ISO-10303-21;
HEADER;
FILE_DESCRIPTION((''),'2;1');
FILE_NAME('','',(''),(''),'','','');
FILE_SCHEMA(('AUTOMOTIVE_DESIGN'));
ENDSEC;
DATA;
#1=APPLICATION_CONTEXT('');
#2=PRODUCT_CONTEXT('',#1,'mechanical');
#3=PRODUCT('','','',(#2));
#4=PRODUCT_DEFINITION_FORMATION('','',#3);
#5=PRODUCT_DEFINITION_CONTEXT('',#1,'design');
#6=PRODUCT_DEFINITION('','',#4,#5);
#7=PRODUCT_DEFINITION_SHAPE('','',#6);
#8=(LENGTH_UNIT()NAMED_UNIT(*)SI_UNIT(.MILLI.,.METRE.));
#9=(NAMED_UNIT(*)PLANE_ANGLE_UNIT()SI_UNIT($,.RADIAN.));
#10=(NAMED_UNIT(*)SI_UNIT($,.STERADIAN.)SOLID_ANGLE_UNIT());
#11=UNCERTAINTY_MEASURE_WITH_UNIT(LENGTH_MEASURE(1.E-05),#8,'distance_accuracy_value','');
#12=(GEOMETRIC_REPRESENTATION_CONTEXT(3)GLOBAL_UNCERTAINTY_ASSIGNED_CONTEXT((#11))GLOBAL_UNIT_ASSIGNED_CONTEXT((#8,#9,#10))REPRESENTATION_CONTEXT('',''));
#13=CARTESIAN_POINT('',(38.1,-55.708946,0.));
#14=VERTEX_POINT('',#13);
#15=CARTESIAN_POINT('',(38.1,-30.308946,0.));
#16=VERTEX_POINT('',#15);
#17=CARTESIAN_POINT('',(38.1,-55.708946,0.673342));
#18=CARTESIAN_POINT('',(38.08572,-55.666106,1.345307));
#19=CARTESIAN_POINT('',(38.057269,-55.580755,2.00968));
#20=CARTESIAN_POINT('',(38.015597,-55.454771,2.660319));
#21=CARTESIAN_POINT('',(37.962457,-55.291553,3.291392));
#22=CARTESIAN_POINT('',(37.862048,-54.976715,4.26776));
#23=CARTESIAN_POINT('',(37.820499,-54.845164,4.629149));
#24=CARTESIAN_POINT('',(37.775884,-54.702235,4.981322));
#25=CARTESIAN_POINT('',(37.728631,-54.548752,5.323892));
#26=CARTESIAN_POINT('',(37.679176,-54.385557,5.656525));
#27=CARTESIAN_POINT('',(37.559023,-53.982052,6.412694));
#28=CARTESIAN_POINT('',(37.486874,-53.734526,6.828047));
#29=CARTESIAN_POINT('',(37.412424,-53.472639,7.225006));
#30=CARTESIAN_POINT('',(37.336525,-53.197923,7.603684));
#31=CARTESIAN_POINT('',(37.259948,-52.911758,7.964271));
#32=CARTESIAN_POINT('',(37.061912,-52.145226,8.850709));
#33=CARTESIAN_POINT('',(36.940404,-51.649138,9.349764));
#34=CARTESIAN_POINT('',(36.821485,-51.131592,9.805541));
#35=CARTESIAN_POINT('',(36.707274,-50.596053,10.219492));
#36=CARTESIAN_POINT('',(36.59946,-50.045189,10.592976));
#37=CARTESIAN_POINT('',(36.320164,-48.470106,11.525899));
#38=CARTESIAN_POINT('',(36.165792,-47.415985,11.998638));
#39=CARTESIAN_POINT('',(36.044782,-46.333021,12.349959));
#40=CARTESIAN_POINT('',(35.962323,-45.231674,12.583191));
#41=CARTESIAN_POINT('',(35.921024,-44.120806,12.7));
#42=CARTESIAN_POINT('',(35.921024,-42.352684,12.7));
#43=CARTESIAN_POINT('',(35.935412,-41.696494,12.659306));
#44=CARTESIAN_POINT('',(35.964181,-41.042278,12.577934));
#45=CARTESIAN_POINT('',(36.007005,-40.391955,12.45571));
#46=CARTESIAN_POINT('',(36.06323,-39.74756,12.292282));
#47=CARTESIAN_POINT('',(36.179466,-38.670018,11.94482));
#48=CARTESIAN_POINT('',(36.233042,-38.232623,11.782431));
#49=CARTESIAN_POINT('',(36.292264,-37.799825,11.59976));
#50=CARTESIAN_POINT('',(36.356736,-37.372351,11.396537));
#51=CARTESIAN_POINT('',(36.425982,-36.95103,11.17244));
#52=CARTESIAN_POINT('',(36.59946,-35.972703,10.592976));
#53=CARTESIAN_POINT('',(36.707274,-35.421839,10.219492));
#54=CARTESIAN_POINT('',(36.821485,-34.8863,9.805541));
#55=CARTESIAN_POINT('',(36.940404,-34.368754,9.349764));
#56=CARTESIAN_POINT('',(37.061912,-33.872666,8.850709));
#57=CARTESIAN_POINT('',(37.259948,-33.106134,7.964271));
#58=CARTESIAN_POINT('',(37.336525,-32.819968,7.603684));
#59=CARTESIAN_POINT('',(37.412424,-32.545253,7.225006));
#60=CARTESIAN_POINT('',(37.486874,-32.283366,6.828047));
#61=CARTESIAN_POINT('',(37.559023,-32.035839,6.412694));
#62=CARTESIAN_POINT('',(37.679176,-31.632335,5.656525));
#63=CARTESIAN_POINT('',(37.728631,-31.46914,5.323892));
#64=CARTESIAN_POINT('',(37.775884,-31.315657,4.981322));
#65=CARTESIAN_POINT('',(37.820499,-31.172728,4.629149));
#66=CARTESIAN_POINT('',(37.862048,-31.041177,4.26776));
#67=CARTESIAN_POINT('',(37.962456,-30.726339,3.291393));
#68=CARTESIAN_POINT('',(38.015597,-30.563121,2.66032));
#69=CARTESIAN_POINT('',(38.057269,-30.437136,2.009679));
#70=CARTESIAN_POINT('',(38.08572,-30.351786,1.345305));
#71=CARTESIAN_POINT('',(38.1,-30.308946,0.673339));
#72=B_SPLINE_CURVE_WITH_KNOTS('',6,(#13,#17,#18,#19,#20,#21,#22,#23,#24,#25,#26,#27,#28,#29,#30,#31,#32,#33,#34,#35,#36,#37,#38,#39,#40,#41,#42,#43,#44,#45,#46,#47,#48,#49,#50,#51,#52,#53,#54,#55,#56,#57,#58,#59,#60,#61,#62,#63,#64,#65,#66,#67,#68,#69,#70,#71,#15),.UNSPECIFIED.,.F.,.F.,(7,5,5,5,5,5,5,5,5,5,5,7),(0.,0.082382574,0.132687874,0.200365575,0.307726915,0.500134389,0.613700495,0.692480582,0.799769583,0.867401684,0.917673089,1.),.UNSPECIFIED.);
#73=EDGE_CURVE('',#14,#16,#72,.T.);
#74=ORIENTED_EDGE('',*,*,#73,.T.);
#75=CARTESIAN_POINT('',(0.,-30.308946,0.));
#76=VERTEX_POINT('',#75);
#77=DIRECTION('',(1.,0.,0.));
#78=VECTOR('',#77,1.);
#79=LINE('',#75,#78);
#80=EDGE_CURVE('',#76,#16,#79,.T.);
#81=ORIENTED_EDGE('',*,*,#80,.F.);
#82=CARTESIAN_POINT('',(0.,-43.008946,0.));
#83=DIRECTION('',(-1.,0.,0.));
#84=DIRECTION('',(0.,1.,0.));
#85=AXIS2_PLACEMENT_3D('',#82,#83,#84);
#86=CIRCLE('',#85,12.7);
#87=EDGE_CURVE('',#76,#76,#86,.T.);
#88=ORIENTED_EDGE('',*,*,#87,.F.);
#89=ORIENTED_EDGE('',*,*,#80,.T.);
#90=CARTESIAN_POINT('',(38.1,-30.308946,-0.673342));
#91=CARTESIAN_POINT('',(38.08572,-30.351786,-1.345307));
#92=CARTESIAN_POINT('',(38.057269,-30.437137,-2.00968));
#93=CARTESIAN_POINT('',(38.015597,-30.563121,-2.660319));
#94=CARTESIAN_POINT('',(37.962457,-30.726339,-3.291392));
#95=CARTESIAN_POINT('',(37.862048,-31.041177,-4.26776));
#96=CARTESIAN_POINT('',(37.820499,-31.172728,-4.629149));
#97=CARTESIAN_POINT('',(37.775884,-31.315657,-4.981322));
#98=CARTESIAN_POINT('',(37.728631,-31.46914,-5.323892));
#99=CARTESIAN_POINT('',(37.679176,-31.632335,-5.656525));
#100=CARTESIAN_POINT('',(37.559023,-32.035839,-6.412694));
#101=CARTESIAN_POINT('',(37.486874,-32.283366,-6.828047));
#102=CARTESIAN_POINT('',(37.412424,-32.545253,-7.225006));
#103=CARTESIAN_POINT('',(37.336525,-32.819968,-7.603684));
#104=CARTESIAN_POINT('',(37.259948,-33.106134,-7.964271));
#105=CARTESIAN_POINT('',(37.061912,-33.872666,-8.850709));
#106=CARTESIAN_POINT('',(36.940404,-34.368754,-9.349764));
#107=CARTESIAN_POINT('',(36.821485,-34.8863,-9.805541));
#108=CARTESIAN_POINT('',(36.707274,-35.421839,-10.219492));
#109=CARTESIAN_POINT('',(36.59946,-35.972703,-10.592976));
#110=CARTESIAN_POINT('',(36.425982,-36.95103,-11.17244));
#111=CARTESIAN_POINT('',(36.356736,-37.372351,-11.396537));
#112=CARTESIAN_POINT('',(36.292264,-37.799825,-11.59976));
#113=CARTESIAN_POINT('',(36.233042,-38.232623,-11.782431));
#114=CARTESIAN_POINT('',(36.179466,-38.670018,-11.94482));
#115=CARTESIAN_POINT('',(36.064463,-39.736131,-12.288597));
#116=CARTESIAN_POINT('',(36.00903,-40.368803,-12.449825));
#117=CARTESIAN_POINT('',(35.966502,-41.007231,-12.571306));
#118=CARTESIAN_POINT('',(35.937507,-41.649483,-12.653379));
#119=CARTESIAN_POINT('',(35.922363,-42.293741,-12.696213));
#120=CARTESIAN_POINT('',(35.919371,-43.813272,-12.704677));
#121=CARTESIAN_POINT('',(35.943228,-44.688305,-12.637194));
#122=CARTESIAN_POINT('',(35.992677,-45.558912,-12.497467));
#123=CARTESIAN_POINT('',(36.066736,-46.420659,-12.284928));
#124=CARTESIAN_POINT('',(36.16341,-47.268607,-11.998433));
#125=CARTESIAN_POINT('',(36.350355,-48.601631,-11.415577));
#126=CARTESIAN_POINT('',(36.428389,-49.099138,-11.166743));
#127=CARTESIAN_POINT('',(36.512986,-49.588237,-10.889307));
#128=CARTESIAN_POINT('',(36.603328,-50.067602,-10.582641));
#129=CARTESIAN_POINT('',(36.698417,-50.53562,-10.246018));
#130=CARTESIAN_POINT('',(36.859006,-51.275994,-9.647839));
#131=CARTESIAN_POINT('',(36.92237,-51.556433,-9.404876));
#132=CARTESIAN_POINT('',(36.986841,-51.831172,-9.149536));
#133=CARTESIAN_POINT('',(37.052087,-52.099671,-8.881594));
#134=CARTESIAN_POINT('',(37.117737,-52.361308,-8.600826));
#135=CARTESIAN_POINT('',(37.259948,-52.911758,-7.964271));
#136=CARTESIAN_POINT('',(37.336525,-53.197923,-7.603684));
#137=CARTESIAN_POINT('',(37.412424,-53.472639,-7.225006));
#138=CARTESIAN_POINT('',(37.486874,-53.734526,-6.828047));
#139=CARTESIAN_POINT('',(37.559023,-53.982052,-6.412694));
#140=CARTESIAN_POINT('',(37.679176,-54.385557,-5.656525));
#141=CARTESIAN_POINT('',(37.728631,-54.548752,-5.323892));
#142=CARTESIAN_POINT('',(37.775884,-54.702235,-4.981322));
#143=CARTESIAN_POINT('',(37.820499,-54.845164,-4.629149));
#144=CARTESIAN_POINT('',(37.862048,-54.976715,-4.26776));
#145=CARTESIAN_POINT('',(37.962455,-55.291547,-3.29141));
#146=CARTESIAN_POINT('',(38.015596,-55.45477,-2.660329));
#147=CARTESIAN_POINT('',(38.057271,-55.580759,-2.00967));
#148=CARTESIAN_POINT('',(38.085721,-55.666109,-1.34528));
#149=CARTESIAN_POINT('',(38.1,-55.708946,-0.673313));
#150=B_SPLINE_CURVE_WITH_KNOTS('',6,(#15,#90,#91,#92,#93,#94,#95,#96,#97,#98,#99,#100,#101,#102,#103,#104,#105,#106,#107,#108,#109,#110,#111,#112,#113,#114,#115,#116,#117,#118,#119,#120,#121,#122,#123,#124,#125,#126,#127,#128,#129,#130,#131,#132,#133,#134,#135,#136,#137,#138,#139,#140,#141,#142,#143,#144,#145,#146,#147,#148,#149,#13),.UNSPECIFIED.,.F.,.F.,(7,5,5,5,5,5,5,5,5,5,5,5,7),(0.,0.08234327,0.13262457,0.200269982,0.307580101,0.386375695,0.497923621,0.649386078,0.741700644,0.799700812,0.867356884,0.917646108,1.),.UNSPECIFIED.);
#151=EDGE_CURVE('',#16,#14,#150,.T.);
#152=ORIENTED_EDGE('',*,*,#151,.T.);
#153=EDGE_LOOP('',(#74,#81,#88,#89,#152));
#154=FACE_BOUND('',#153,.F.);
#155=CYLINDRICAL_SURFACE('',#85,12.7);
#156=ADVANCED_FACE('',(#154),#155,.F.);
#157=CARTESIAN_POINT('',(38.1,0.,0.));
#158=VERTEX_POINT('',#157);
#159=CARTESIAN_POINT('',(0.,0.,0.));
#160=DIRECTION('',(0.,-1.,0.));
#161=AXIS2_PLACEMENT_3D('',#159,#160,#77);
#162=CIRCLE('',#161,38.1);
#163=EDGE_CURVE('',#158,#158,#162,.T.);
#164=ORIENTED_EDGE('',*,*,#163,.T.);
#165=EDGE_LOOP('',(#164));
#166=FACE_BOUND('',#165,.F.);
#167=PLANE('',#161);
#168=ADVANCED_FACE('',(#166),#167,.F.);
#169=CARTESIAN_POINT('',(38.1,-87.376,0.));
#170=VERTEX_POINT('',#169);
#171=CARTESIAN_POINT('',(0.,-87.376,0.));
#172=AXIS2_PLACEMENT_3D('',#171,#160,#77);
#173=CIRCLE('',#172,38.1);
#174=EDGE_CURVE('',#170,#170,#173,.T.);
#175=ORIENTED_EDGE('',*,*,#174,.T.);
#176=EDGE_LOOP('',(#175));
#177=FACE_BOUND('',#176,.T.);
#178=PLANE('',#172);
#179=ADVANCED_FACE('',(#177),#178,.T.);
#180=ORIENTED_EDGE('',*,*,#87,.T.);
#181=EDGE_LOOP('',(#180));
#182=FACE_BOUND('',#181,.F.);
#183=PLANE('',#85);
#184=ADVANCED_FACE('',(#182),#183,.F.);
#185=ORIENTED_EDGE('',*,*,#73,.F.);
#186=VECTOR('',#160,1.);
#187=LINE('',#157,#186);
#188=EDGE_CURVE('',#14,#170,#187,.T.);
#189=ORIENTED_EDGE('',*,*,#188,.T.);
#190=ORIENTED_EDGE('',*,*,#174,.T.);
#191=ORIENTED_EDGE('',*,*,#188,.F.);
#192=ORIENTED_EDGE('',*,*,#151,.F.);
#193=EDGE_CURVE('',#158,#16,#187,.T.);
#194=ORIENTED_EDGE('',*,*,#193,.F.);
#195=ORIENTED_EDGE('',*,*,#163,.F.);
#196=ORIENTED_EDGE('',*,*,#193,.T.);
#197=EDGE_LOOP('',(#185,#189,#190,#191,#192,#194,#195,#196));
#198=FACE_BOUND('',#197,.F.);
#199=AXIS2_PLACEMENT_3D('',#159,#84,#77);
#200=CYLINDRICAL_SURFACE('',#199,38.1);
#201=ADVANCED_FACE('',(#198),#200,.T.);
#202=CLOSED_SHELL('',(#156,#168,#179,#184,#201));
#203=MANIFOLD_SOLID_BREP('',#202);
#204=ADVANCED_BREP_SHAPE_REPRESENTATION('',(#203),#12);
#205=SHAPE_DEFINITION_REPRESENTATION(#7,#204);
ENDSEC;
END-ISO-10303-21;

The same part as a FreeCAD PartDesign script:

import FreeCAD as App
import Part
import Sketcher
Q = App.Units.Quantity

doc = App.newDocument("Part")
params = doc.addObject("Spreadsheet::Sheet", "Params")
for row, (alias, value) in enumerate([
    ("sketch1_diameter", "3 in"),
    ("pad1_length", "3.44 in"),
    ("sketch2_diameter", "1 in"),
], start=1):
    params.set(f"A{row}", alias)
    params.set(f"B{row}", "=" + value)
    params.setAlias(f"B{row}", alias)

body = doc.addObject("PartDesign::Body", "Body")

sketch1 = body.newObject("Sketcher::SketchObject", "Sketch")
sketch1.AttachmentSupport = (doc.getObject("XZ_Plane"), [""])
sketch1.MapMode = "FlatFace"
sketch1.addGeometry(Part.Circle(App.Vector(0, 0, 0), App.Vector(0, 0, 1), 38), False)
sketch1.addConstraint(Sketcher.Constraint("Coincident", 0, 3, -1, 1))
sketch1.addConstraint(Sketcher.Constraint("Diameter", 0, Q("3 in")))
sketch1.setExpression("Constraints[1]", "Params.sketch1_diameter")
pad1 = body.newObject("PartDesign::Pad", "Pad")
pad1.Profile = sketch1
pad1.setExpression("Length", "Params.pad1_length")

sketch2 = body.newObject("Sketcher::SketchObject", "Sketch001")
sketch2.AttachmentSupport = (doc.getObject("YZ_Plane"), [""])
sketch2.MapMode = "FlatFace"
sketch2.addGeometry(Part.Circle(App.Vector(-43, 0, 0), App.Vector(0, 0, 1), 13), False)
sketch2.addConstraint(Sketcher.Constraint("PointOnObject", 0, 3, -1))
sketch2.addConstraint(Sketcher.Constraint("Diameter", 0, Q("1 in")))
sketch2.addConstraint(Sketcher.Constraint("DistanceX", 0, 3, -1, 1, 43.008946))
sketch2.setExpression("Constraints[1]", "Params.sketch2_diameter")
pocket1 = body.newObject("PartDesign::Pocket", "Pocket")
pocket1.Profile = sketch2
pocket1.Type = "ThroughAll"
pocket1.Reversed = True

doc.recompute()
